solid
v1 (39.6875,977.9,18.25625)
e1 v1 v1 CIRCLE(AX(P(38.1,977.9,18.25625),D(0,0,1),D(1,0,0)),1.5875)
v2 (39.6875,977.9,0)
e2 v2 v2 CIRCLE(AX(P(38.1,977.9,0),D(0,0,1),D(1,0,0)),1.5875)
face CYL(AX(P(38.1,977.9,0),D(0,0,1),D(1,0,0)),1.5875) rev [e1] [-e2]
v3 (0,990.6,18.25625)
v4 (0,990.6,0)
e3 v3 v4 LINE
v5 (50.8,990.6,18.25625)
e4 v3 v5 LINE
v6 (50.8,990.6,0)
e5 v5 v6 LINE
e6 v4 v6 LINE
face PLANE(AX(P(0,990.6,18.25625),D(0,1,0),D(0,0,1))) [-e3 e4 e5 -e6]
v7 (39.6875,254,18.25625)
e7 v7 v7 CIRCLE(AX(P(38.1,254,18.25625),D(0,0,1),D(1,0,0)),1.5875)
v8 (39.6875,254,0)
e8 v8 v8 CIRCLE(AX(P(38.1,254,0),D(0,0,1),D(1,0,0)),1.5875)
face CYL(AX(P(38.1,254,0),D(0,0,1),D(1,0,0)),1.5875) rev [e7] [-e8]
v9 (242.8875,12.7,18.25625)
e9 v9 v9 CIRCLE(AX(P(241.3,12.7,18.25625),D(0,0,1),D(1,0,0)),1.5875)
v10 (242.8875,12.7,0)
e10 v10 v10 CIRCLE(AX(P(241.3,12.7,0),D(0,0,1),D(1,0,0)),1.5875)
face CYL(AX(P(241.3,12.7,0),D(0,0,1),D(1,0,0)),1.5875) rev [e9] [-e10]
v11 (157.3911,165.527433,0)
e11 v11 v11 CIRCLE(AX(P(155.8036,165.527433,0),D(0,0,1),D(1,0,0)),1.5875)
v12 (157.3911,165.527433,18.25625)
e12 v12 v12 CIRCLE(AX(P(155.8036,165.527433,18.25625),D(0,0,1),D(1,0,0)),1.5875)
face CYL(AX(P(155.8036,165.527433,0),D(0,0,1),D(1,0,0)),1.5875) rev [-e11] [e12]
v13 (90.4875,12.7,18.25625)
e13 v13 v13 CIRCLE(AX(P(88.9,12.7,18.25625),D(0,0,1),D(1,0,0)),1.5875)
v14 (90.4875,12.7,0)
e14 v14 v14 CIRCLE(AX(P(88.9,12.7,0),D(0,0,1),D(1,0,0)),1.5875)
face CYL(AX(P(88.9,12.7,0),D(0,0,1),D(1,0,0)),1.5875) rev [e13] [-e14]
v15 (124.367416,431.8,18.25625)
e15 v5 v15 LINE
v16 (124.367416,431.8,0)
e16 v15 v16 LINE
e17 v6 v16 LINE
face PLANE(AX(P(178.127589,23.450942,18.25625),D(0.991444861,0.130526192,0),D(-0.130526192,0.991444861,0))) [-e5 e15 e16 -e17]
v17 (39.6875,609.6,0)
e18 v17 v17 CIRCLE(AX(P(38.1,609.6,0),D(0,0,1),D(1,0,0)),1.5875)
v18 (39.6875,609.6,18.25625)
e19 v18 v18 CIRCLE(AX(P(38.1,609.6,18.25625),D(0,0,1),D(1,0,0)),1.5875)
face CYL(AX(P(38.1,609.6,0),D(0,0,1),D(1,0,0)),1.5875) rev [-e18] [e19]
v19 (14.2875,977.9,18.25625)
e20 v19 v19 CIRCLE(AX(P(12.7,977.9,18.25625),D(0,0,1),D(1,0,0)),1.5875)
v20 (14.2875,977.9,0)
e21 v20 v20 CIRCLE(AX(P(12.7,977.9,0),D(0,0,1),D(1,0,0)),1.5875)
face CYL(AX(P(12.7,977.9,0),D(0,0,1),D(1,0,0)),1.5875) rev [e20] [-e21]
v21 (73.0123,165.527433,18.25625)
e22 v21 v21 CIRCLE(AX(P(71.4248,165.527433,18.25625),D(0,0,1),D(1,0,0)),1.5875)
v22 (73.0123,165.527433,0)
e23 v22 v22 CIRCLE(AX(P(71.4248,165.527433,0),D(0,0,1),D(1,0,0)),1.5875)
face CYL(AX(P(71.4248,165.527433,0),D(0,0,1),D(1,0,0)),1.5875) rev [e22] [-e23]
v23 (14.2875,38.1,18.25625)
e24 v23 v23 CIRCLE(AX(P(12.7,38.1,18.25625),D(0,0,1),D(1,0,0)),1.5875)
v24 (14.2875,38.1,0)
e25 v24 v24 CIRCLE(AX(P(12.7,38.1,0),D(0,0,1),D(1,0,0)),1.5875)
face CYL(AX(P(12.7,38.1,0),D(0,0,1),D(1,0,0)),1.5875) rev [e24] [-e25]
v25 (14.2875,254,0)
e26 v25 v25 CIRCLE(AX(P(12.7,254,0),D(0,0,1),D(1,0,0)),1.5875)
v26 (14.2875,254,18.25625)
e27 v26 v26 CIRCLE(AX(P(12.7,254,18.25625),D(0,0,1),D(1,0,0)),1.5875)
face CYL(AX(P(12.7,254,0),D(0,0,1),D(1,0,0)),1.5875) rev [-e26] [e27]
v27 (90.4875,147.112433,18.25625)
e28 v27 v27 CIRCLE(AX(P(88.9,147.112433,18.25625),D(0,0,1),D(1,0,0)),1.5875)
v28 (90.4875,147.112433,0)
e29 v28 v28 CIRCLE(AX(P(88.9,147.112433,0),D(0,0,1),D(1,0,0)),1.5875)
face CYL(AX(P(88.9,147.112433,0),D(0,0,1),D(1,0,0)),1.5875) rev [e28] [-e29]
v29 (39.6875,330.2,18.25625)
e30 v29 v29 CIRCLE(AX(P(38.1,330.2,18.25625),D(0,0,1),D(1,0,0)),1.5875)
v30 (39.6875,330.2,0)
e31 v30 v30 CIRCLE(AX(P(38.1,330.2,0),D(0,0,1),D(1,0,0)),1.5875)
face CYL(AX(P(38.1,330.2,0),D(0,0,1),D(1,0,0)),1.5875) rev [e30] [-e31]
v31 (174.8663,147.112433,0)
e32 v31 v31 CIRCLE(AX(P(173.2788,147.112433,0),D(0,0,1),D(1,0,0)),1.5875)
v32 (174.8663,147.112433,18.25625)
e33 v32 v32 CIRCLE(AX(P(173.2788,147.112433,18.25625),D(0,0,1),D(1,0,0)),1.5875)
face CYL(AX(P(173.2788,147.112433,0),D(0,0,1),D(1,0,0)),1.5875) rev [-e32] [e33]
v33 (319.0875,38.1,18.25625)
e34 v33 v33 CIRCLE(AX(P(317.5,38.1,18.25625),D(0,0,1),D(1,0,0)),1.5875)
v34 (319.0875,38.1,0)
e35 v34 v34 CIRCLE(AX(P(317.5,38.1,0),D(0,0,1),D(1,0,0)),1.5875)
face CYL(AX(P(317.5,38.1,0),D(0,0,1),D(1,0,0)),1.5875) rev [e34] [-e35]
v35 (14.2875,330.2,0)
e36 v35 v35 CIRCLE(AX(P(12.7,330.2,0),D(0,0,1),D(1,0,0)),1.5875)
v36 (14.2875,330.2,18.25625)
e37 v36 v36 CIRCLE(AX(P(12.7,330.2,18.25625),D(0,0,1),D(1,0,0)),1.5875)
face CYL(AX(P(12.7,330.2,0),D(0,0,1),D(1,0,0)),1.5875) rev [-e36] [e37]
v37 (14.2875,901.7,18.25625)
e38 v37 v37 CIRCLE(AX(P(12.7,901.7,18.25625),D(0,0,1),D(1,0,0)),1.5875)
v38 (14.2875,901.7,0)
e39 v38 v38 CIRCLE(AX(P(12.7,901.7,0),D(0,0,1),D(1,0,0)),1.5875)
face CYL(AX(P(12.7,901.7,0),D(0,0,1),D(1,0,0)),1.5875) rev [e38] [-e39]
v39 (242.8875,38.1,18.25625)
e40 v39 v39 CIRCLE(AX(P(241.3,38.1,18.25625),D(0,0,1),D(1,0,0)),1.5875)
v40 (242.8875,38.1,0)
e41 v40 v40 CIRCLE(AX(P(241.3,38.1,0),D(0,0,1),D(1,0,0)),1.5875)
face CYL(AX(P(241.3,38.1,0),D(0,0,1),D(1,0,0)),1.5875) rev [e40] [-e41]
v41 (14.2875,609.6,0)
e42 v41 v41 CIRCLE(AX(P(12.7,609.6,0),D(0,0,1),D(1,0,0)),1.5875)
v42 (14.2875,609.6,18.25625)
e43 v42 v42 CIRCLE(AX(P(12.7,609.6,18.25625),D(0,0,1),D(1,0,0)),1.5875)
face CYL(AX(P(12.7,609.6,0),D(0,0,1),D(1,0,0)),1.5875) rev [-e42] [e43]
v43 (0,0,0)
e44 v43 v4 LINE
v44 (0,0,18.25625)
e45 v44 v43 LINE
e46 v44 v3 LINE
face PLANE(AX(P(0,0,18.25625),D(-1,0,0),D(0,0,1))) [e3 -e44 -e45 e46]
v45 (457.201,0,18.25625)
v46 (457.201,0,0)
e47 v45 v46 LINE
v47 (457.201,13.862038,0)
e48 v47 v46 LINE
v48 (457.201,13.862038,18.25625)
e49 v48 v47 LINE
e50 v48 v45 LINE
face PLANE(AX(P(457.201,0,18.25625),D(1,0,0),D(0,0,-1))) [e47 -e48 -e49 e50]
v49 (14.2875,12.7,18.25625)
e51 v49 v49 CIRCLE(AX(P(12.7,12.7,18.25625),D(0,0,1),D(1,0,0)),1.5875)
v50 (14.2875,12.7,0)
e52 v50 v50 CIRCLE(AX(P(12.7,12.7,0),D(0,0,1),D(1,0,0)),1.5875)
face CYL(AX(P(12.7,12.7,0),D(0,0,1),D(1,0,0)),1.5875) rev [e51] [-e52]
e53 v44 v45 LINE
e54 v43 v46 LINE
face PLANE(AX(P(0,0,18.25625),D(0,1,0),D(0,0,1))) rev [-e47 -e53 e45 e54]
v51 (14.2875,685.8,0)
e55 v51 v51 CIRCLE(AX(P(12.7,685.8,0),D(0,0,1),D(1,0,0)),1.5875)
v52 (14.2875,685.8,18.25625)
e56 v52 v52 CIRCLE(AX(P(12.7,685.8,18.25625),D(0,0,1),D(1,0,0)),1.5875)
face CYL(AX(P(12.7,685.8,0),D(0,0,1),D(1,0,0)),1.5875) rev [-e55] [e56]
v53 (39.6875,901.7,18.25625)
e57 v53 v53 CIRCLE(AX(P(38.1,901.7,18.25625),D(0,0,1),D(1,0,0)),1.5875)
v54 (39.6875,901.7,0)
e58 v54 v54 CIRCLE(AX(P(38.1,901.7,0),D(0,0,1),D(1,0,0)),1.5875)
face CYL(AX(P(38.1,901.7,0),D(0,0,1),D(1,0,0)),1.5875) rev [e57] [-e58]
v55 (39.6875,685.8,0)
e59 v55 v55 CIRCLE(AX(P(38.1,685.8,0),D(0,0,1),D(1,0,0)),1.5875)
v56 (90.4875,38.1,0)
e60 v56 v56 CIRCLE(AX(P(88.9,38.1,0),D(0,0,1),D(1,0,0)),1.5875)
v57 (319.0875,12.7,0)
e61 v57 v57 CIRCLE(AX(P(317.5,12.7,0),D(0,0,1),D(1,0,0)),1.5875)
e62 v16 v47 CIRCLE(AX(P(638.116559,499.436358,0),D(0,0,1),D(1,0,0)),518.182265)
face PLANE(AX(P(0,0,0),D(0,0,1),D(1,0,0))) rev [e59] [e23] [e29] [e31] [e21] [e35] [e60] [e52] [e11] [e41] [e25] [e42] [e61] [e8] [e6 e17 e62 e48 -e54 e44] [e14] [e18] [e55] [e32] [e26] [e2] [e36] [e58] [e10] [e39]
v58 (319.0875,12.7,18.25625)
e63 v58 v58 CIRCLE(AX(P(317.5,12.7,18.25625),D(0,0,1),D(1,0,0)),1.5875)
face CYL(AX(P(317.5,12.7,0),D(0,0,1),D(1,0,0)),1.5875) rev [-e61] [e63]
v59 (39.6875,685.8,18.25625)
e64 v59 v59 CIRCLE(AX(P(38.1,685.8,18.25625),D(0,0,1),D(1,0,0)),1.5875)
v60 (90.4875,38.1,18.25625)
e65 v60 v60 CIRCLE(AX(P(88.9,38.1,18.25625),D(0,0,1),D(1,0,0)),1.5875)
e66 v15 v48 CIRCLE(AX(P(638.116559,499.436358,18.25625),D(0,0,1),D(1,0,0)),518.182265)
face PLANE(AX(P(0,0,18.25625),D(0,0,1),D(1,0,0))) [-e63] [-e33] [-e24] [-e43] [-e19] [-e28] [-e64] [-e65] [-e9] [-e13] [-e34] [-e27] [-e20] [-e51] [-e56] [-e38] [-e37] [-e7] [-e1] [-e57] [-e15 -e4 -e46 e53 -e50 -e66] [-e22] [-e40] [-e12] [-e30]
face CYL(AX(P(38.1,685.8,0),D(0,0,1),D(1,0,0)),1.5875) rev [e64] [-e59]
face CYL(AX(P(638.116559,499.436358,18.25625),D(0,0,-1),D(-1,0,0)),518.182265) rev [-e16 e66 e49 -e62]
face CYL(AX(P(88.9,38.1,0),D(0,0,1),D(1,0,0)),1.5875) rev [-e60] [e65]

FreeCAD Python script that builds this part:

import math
import FreeCAD as App
import Part
import Sketcher
Q = App.Units.Quantity

doc = App.newDocument("Part")
body = doc.addObject("PartDesign::Body", "Body")

# Sketch on XY plane
sketch1 = doc.addObject("Sketcher::SketchObject", "Sketch")
body.addObject(sketch1)
sketch1.AttachmentSupport = (doc.XY_Plane, [""])
sketch1.MapMode = "FlatFace"
sketch1.addGeometry([
    Part.LineSegment(App.Vector(0, 991, 0), App.Vector(0, 0, 0)),  # 0
    Part.LineSegment(App.Vector(0, 0, 0), App.Vector(457, 0, 0)),  # 1
    Part.LineSegment(App.Vector(457, 0, 0), App.Vector(457, 14, 0)),  # 2
    Part.ArcOfCircle(Part.Circle(App.Vector(638, 499, 0), App.Vector(0, 0, 1), 518), math.radians(-172), math.radians(-110)),  # 3
    Part.LineSegment(App.Vector(124, 432, 0), App.Vector(51, 991, 0)),  # 4
    Part.LineSegment(App.Vector(51, 991, 0), App.Vector(0, 991, 0)),  # 5
], False)
sketch1.addConstraint([
    Sketcher.Constraint("Coincident", 0, 2, 1, 1),
    Sketcher.Constraint("Coincident", 1, 2, 2, 1),
    Sketcher.Constraint("Coincident", 2, 2, 3, 2),
    Sketcher.Constraint("Tangent", 3, 1, 4, 1),
    Sketcher.Constraint("Coincident", 4, 2, 5, 1),
    Sketcher.Constraint("Coincident", 5, 2, 0, 1),
    Sketcher.Constraint("Vertical", 0),
    Sketcher.Constraint("Horizontal", 1),
    Sketcher.Constraint("Vertical", 2),
    Sketcher.Constraint("Horizontal", 5),
    Sketcher.Constraint("Coincident", 0, 2, -1, 1),
    Sketcher.Constraint("DistanceX", 5, 2, 5, 1, Q("2 in")),
    Sketcher.Constraint("DistanceY", 0, 2, 0, 1, Q("39 in")),
    Sketcher.Constraint("Angle", 4, Q("97.5 deg")),
    Sketcher.Constraint("DistanceX", 1, 1, 1, 2, Q("457.201 mm")),
    Sketcher.Constraint("Radius", 3, Q("518.182265 mm")),
    Sketcher.Constraint("DistanceY", 2, 1, 2, 2, Q("13.862038 mm")),
])
pad1 = doc.addObject("PartDesign::Pad", "Pad")
body.addObject(pad1)
pad1.Profile = sketch1
pad1.Length = Q("0.71875 in")

# Sketch on XY plane
sketch2 = doc.addObject("Sketcher::SketchObject", "Sketch001")
body.addObject(sketch2)
sketch2.AttachmentSupport = (doc.XY_Plane, [""])
sketch2.MapMode = "FlatFace"
sketch2.AttachmentOffset = App.Placement(App.Vector(0, 0, 0.71875 * 25.4), App.Rotation())
sketch2.addGeometry([
    Part.Circle(App.Vector(12.7, 977.9, 0), App.Vector(0, 0, 1), 1.6),  # 0
    Part.Circle(App.Vector(38.1, 977.9, 0), App.Vector(0, 0, 1), 1.6),  # 1
    Part.Circle(App.Vector(12.7, 901.7, 0), App.Vector(0, 0, 1), 1.6),  # 2
    Part.Circle(App.Vector(38.1, 901.7, 0), App.Vector(0, 0, 1), 1.6),  # 3
    Part.Circle(App.Vector(12.7, 609.6, 0), App.Vector(0, 0, 1), 1.6),  # 4
    Part.Circle(App.Vector(38.1, 609.6, 0), App.Vector(0, 0, 1), 1.6),  # 5
    Part.Circle(App.Vector(12.7, 685.8, 0), App.Vector(0, 0, 1), 1.6),  # 6
    Part.Circle(App.Vector(38.1, 685.8, 0), App.Vector(0, 0, 1), 1.6),  # 7
    Part.Circle(App.Vector(12.7, 254, 0), App.Vector(0, 0, 1), 1.6),  # 8
    Part.Circle(App.Vector(38.1, 254, 0), App.Vector(0, 0, 1), 1.6),  # 9
    Part.Circle(App.Vector(12.7, 330.2, 0), App.Vector(0, 0, 1), 1.6),  # 10
    Part.Circle(App.Vector(38.1, 330.2, 0), App.Vector(0, 0, 1), 1.6),  # 11
    Part.Circle(App.Vector(12.7, 38.1, 0), App.Vector(0, 0, 1), 1.6),  # 12
    Part.Circle(App.Vector(12.7, 12.7, 0), App.Vector(0, 0, 1), 1.6),  # 13
    Part.Circle(App.Vector(88.9, 38.1, 0), App.Vector(0, 0, 1), 1.6),  # 14
    Part.Circle(App.Vector(88.9, 12.7, 0), App.Vector(0, 0, 1), 1.6),  # 15
    Part.Circle(App.Vector(241.3, 38.1, 0), App.Vector(0, 0, 1), 1.6),  # 16
    Part.Circle(App.Vector(317.5, 38.1, 0), App.Vector(0, 0, 1), 1.6),  # 17
    Part.Circle(App.Vector(241.3, 12.7, 0), App.Vector(0, 0, 1), 1.6),  # 18
    Part.Circle(App.Vector(317.5, 12.7, 0), App.Vector(0, 0, 1), 1.6),  # 19
], False)
sketch2.addConstraint([
    Sketcher.Constraint("Equal", 0, 1),
    Sketcher.Constraint("Equal", 1, 2),
    Sketcher.Constraint("Equal", 2, 3),
    Sketcher.Constraint("Equal", 3, 4),
    Sketcher.Constraint("Equal", 4, 5),
    Sketcher.Constraint("Equal", 5, 6),
    Sketcher.Constraint("Equal", 6, 7),
    Sketcher.Constraint("Equal", 7, 8),
    Sketcher.Constraint("Equal", 8, 9),
    Sketcher.Constraint("Equal", 9, 10),
    Sketcher.Constraint("Equal", 10, 11),
    Sketcher.Constraint("Equal", 11, 12),
    Sketcher.Constraint("Equal", 12, 13),
    Sketcher.Constraint("Equal", 13, 14),
    Sketcher.Constraint("Equal", 14, 15),
    Sketcher.Constraint("Equal", 15, 16),
    Sketcher.Constraint("Equal", 16, 17),
    Sketcher.Constraint("Equal", 17, 18),
    Sketcher.Constraint("Equal", 18, 19),
    Sketcher.Constraint("Horizontal", 0, 3, 1, 3),
    Sketcher.Constraint("Horizontal", 2, 3, 3, 3),
    Sketcher.Constraint("Horizontal", 4, 3, 5, 3),
    Sketcher.Constraint("Horizontal", 6, 3, 7, 3),
    Sketcher.Constraint("Horizontal", 8, 3, 9, 3),
    Sketcher.Constraint("Horizontal", 10, 3, 11, 3),
    Sketcher.Constraint("Horizontal", 12, 3, 14, 3),
    Sketcher.Constraint("Horizontal", 13, 3, 15, 3),
    Sketcher.Constraint("Horizontal", 14, 3, 16, 3),
    Sketcher.Constraint("Horizontal", 16, 3, 17, 3),
    Sketcher.Constraint("Horizontal", 15, 3, 18, 3),
    Sketcher.Constraint("Horizontal", 18, 3, 19, 3),
    Sketcher.Constraint("Vertical", 0, 3, 2, 3),
    Sketcher.Constraint("Vertical", 1, 3, 3, 3),
    Sketcher.Constraint("Vertical", 2, 3, 4, 3),
    Sketcher.Constraint("Vertical", 3, 3, 5, 3),
    Sketcher.Constraint("Vertical", 4, 3, 6, 3),
    Sketcher.Constraint("Vertical", 5, 3, 7, 3),
    Sketcher.Constraint("Vertical", 6, 3, 8, 3),
    Sketcher.Constraint("Vertical", 7, 3, 9, 3),
    Sketcher.Constraint("Vertical", 8, 3, 10, 3),
    Sketcher.Constraint("Vertical", 9, 3, 11, 3),
    Sketcher.Constraint("Vertical", 10, 3, 12, 3),
    Sketcher.Constraint("Vertical", 12, 3, 13, 3),
    Sketcher.Constraint("Vertical", 14, 3, 15, 3),
    Sketcher.Constraint("Vertical", 16, 3, 18, 3),
    Sketcher.Constraint("Vertical", 17, 3, 19, 3),
    Sketcher.Constraint("Diameter", 0, Q("0.125 in")),
    Sketcher.Constraint("DistanceY", -1, 1, 4, 3, Q("24 in")),
    Sketcher.Constraint("DistanceY", -1, 1, 6, 3, Q("27 in")),
    Sketcher.Constraint("DistanceY", -1, 1, 8, 3, Q("10 in")),
    Sketcher.Constraint("DistanceY", -1, 1, 10, 3, Q("13 in")),
    Sketcher.Constraint("DistanceX", 0, 3, 1, 3, Q("1 in")),
    Sketcher.Constraint("DistanceY", 2, 3, 0, 3, Q("3 in")),
    Sketcher.Constraint("DistanceY", 13, 3, 12, 3, Q("1 in")),
    Sketcher.Constraint("DistanceX", 12, 3, 14, 3, Q("3 in")),
    Sketcher.Constraint("DistanceX", 14, 3, 16, 3, Q("6 in")),
    Sketcher.Constraint("DistanceX", 16, 3, 17, 3, Q("3 in")),
    Sketcher.Constraint("DistanceX", -1, 1, 0, 3, Q("0.5 in")),
    Sketcher.Constraint("DistanceY", -1, 1, 0, 3, Q("38.5 in")),
    Sketcher.Constraint("DistanceY", -1, 1, 12, 3, Q("1.5 in")),
])
pocket1 = doc.addObject("PartDesign::Pocket", "Pocket")
body.addObject(pocket1)
pocket1.Profile = sketch2
pocket1.Type = "ThroughAll"

# Sketch on XY plane
sketch3 = doc.addObject("Sketcher::SketchObject", "Sketch002")
body.addObject(sketch3)
sketch3.AttachmentSupport = (doc.XY_Plane, [""])
sketch3.MapMode = "FlatFace"
sketch3.AttachmentOffset = App.Placement(App.Vector(0, 0, 0.71875 * 25.4), App.Rotation())
sketch3.addGeometry([
    Part.Circle(App.Vector(88.9, 147.1, 0), App.Vector(0, 0, 1), 1.6),
    Part.Circle(App.Vector(71.4, 165.5, 0), App.Vector(0, 0, 1), 1.6),
    Part.Circle(App.Vector(155.8, 165.5, 0), App.Vector(0, 0, 1), 1.6),
    Part.Circle(App.Vector(173.3, 147.1, 0), App.Vector(0, 0, 1), 1.6),
], False)
sketch3.addConstraint([
    Sketcher.Constraint("Equal", 0, 1),
    Sketcher.Constraint("Equal", 1, 2),
    Sketcher.Constraint("Equal", 2, 3),
    Sketcher.Constraint("Horizontal", 1, 3, 2, 3),
    Sketcher.Constraint("Horizontal", 0, 3, 3, 3),
    Sketcher.Constraint("Diameter", 0, Q("0.125 in")),
    Sketcher.Constraint("DistanceX", -1, 1, 0, 3, Q("3.5 in")),
    Sketcher.Constraint("DistanceX", 1, 3, 3, 3, Q("4.01 in")),
    Sketcher.Constraint("DistanceX", -1, 1, 1, 3, Q("2.812 in")),
    Sketcher.Constraint("DistanceX", -1, 1, 2, 3, Q("6.134 in")),
    Sketcher.Constraint("DistanceY", 0, 3, 1, 3, Q("0.725 in")),
    Sketcher.Constraint("DistanceY", -1, 1, 0, 3, Q("147.112433 mm")),
])
pocket2 = doc.addObject("PartDesign::Pocket", "Pocket001")
body.addObject(pocket2)
pocket2.Profile = sketch3
pocket2.Type = "ThroughAll"

doc.recompute()
